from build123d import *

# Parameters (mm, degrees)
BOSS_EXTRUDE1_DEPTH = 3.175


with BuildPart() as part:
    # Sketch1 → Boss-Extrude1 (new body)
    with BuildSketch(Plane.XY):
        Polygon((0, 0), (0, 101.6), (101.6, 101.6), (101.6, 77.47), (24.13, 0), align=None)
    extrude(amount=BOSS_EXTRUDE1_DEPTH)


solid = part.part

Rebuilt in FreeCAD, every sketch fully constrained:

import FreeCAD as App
import Part
import Sketcher
Q = App.Units.Quantity

doc = App.newDocument("Part")
body = doc.addObject("PartDesign::Body", "Body")

sketch1 = body.newObject("Sketcher::SketchObject", "Sketch")
sketch1.AttachmentSupport = (doc.getObject("XY_Plane"), [""])
sketch1.MapMode = "FlatFace"
sketch1.addGeometry(Part.LineSegment(App.Vector(0, 102, 0), App.Vector(0, 0, 0)), False)
sketch1.addGeometry(Part.LineSegment(App.Vector(0, 0, 0), App.Vector(24, 0, 0)), False)
sketch1.addGeometry(Part.LineSegment(App.Vector(24, 0, 0), App.Vector(102, 77, 0)), False)
sketch1.addGeometry(Part.LineSegment(App.Vector(102, 77, 0), App.Vector(102, 102, 0)), False)
sketch1.addGeometry(Part.LineSegment(App.Vector(102, 102, 0), App.Vector(0, 102, 0)), False)
sketch1.addConstraint(Sketcher.Constraint("Coincident", 0, 2, 1, 1))
sketch1.addConstraint(Sketcher.Constraint("Coincident", 1, 2, 2, 1))
sketch1.addConstraint(Sketcher.Constraint("Coincident", 2, 2, 3, 1))
sketch1.addConstraint(Sketcher.Constraint("Coincident", 3, 2, 4, 1))
sketch1.addConstraint(Sketcher.Constraint("Coincident", 4, 2, 0, 1))
sketch1.addConstraint(Sketcher.Constraint("Vertical", 0))
sketch1.addConstraint(Sketcher.Constraint("Horizontal", 1))
sketch1.addConstraint(Sketcher.Constraint("Vertical", 3))
sketch1.addConstraint(Sketcher.Constraint("Horizontal", 4))
sketch1.addConstraint(Sketcher.Constraint("Coincident", 0, 2, -1, 1))
sketch1.addConstraint(Sketcher.Constraint("Equal", 4, 0))
sketch1.addConstraint(Sketcher.Constraint("Equal", 1, 3))
sketch1.addConstraint(Sketcher.Constraint("DistanceX", 4, 2, 4, 1, Q("4 in")))
sketch1.addConstraint(Sketcher.Constraint("DistanceX", 1, 1, 1, 2, Q("0.95 in")))
pad1 = body.newObject("PartDesign::Pad", "Pad")
pad1.Profile = sketch1
pad1.Length = Q("0.125 in")

doc.recompute()
